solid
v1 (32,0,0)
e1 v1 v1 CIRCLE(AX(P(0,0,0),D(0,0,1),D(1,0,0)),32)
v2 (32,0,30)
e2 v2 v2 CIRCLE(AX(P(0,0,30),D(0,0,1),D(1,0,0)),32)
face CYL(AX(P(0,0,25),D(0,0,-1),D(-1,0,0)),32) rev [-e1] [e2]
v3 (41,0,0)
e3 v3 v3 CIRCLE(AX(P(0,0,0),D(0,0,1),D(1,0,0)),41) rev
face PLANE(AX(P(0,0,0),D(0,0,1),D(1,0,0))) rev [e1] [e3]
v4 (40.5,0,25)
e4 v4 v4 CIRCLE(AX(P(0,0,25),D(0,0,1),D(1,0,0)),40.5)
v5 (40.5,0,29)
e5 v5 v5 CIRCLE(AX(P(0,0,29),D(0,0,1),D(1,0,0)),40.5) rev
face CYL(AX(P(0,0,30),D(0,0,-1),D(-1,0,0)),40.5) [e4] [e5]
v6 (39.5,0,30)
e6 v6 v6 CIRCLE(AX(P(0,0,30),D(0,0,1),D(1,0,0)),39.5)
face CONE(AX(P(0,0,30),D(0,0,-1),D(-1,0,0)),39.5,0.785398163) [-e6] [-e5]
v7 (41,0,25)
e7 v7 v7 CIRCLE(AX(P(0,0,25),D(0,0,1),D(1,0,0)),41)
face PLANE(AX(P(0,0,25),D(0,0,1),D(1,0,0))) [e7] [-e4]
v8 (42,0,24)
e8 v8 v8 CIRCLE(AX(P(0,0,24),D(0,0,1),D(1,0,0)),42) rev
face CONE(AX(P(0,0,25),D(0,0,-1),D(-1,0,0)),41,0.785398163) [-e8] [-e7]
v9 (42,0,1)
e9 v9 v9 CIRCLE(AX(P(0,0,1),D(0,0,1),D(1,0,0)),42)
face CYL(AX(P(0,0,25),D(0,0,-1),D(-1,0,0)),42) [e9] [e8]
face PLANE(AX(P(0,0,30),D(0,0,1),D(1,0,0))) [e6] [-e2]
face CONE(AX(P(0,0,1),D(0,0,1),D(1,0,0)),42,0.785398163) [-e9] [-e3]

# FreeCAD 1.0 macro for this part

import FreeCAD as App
import Part
import Sketcher
Q = App.Units.Quantity


def edges_at(feature, points):
    """Names of the edges that pass closest to the given points."""
    edges = feature.Shape.Edges
    near = lambda p: min(range(len(edges)), key=lambda i: edges[i].distToShape(Part.Vertex(*p))[0])
    return sorted({f"Edge{near(p) + 1}" for p in points})

doc = App.newDocument("Part")
params = doc.addObject("Spreadsheet::Sheet", "Params")
for row, (alias, value) in enumerate([
    ("sketch1_diameter", "84 mm"),
    ("sketch1_diameter2", "64 mm"),
    ("pad1_length", "25 mm"),
    ("sketch2_diameter", "81 mm"),
    ("sketch2_diameter2", "64 mm"),
    ("pad2_length", "5 mm"),
    ("chamfer_size", "1 mm"),
], start=1):
    params.set(f"A{row}", alias)
    params.set(f"B{row}", "=" + value)
    params.setAlias(f"B{row}", alias)

body = doc.addObject("PartDesign::Body", "Body")

# Sketch on XY plane
sketch1 = body.newObject("Sketcher::SketchObject", "Sketch")
sketch1.AttachmentSupport = (doc.getObject("XY_Plane"), [""])
sketch1.MapMode = "FlatFace"
sketch1.addGeometry([
    Part.Circle(App.Vector(0, 0, 0), App.Vector(0, 0, 1), 42),
    Part.Circle(App.Vector(0, 0, 0), App.Vector(0, 0, 1), 32),
], False)
sketch1.addConstraint([
    Sketcher.Constraint("Coincident", 0, 3, -1, 1),
    Sketcher.Constraint("Coincident", 1, 3, -1, 1),
    Sketcher.Constraint("Diameter", 0, Q("84 mm")),
    Sketcher.Constraint("Diameter", 1, Q("64 mm")),
])
sketch1.setExpression("Constraints[2]", "Params.sketch1_diameter")
sketch1.setExpression("Constraints[3]", "Params.sketch1_diameter2")
pad1 = body.newObject("PartDesign::Pad", "Pad")
pad1.Profile = sketch1
pad1.setExpression("Length", "Params.pad1_length")

# Sketch on XY plane
sketch2 = body.newObject("Sketcher::SketchObject", "Sketch001")
sketch2.AttachmentSupport = (doc.getObject("XY_Plane"), [""])
sketch2.MapMode = "FlatFace"
sketch2.AttachmentOffset = App.Placement(App.Vector(0, 0, 25), App.Rotation())
sketch2.addGeometry([
    Part.Circle(App.Vector(0, 0, 0), App.Vector(0, 0, 1), 40.5),
    Part.Circle(App.Vector(0, 0, 0), App.Vector(0, 0, 1), 32),
], False)
sketch2.addConstraint([
    Sketcher.Constraint("Coincident", 0, 3, -1, 1),
    Sketcher.Constraint("Coincident", 1, 3, -1, 1),
    Sketcher.Constraint("Diameter", 0, Q("81 mm")),
    Sketcher.Constraint("Diameter", 1, Q("64 mm")),
])
sketch2.setExpression("Constraints[2]", "Params.sketch2_diameter")
sketch2.setExpression("Constraints[3]", "Params.sketch2_diameter2")
pad2 = body.newObject("PartDesign::Pad", "Pad001")
pad2.Profile = sketch2
pad2.setExpression("Length", "Params.pad2_length")
doc.recompute()

chamfer = body.newObject("PartDesign::Chamfer", "Chamfer")
chamfer.Base = (pad2, edges_at(pad2, [(-40.5, 0, 30), (-42, 0, 0), (-42, 0, 25)]))
chamfer.setExpression("Size", "Params.chamfer_size")

doc.recompute()
